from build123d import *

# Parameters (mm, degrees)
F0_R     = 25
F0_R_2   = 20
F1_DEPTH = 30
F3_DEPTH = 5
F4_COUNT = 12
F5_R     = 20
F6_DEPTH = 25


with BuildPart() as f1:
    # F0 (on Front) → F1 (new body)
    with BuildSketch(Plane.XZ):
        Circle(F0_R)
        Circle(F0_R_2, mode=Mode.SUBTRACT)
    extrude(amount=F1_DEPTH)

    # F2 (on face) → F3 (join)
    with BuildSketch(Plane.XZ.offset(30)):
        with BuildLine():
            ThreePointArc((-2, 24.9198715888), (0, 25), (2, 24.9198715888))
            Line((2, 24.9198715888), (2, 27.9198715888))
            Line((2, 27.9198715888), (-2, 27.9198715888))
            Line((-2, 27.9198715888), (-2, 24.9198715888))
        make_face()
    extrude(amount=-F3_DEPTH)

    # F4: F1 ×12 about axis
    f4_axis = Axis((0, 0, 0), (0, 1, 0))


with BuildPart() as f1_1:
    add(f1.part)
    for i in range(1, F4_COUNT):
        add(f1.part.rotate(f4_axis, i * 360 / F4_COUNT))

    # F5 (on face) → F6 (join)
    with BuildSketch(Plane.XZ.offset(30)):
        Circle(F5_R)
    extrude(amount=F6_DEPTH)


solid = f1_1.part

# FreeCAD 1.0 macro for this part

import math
import FreeCAD as App
import Part
import Sketcher
Q = App.Units.Quantity

doc = App.newDocument("Part")
body = doc.addObject("PartDesign::Body", "Body")

sketch1 = body.newObject("Sketcher::SketchObject", "Sketch")
sketch1.AttachmentSupport = (doc.getObject("XZ_Plane"), [""])
sketch1.MapMode = "FlatFace"
sketch1.addGeometry(Part.Circle(App.Vector(0, 0, 0), App.Vector(0, 0, 1), 25), False)
sketch1.addGeometry(Part.Circle(App.Vector(0, 0, 0), App.Vector(0, 0, 1), 20), False)
sketch1.addConstraint(Sketcher.Constraint("Coincident", 0, 3, -1, 1))
sketch1.addConstraint(Sketcher.Constraint("Coincident", 1, 3, -1, 1))
sketch1.addConstraint(Sketcher.Constraint("Diameter", 0, Q("50 mm")))
sketch1.addConstraint(Sketcher.Constraint("Diameter", 1, Q("40 mm")))
pad1 = body.newObject("PartDesign::Pad", "Pad")
pad1.Profile = sketch1
pad1.Length = 30

sketch2 = body.newObject("Sketcher::SketchObject", "Sketch001")
sketch2.AttachmentSupport = (doc.getObject("XZ_Plane"), [""])
sketch2.MapMode = "FlatFace"
sketch2.AttachmentOffset = App.Placement(App.Vector(0, 0, 30), App.Rotation())
sketch2.addGeometry(Part.ArcOfCircle(Part.Circle(App.Vector(0, 0, 0), App.Vector(0, 0, 1), 25), math.radians(85.41), math.radians(94.59)), False)
sketch2.addGeometry(Part.LineSegment(App.Vector(2, 24.9, 0), App.Vector(2, 27.9, 0)), False)
sketch2.addGeometry(Part.LineSegment(App.Vector(2, 27.9, 0), App.Vector(-2, 27.9, 0)), False)
sketch2.addGeometry(Part.LineSegment(App.Vector(-2, 27.9, 0), App.Vector(-2, 24.9, 0)), False)
sketch2.addConstraint(Sketcher.Constraint("Coincident", 0, 1, 1, 1))
sketch2.addConstraint(Sketcher.Constraint("Coincident", 1, 2, 2, 1))
sketch2.addConstraint(Sketcher.Constraint("Coincident", 2, 2, 3, 1))
sketch2.addConstraint(Sketcher.Constraint("Coincident", 3, 2, 0, 2))
sketch2.addConstraint(Sketcher.Constraint("Vertical", 1))
sketch2.addConstraint(Sketcher.Constraint("Horizontal", 2))
sketch2.addConstraint(Sketcher.Constraint("Vertical", 3))
sketch2.addConstraint(Sketcher.Constraint("Coincident", 0, 3, -1, 1))
sketch2.addConstraint(Sketcher.Constraint("Horizontal", 0, 1, 3, 2))
sketch2.addConstraint(Sketcher.Constraint("Radius", 0, Q("25 mm")))
sketch2.addConstraint(Sketcher.Constraint("DistanceX", 2, 2, 2, 1, Q("4 mm")))
sketch2.addConstraint(Sketcher.Constraint("DistanceY", 1, 1, 1, 2, Q("3 mm")))
pad2 = body.newObject("PartDesign::Pad", "Pad001")
pad2.Profile = sketch2
pad2.Length = 5
pad2.Reversed = True
body2 = doc.addObject("PartDesign::Body", "Body001")
body2.AllowCompound = True
doc.recompute()

body2.BaseFeature = body
doc.recompute()

body3 = doc.addObject("PartDesign::Body", "Body002")
body3.BaseFeature = body
body3.Placement = App.Placement(App.Vector(0, 0, 0), App.Rotation(App.Vector(0, 1, 0), 30))
boolean = body2.newObject("PartDesign::Boolean", "Boolean")
boolean.Type = "Fuse"
boolean.addObjects([body3])
doc.recompute()

body4 = doc.addObject("PartDesign::Body", "Body003")
body4.BaseFeature = body
body4.Placement = App.Placement(App.Vector(0, 0, 0), App.Rotation(App.Vector(0, 1, 0), 60))
boolean2 = body2.newObject("PartDesign::Boolean", "Boolean001")
boolean2.Type = "Fuse"
boolean2.addObjects([body4])
doc.recompute()

body5 = doc.addObject("PartDesign::Body", "Body004")
body5.BaseFeature = body
body5.Placement = App.Placement(App.Vector(0, 0, 0), App.Rotation(App.Vector(0, 1, 0), 90))
boolean3 = body2.newObject("PartDesign::Boolean", "Boolean002")
boolean3.Type = "Fuse"
boolean3.addObjects([body5])
doc.recompute()

body6 = doc.addObject("PartDesign::Body", "Body005")
body6.BaseFeature = body
body6.Placement = App.Placement(App.Vector(0, 0, 0), App.Rotation(App.Vector(0, 1, 0), 120))
boolean4 = body2.newObject("PartDesign::Boolean", "Boolean003")
boolean4.Type = "Fuse"
boolean4.addObjects([body6])
doc.recompute()

body7 = doc.addObject("PartDesign::Body", "Body006")
body7.BaseFeature = body
body7.Placement = App.Placement(App.Vector(0, 0, 0), App.Rotation(App.Vector(0, 1, 0), 150))
boolean5 = body2.newObject("PartDesign::Boolean", "Boolean004")
boolean5.Type = "Fuse"
boolean5.addObjects([body7])
doc.recompute()

body8 = doc.addObject("PartDesign::Body", "Body007")
body8.BaseFeature = body
body8.Placement = App.Placement(App.Vector(0, 0, 0), App.Rotation(App.Vector(0, 1, 0), 180))
boolean6 = body2.newObject("PartDesign::Boolean", "Boolean005")
boolean6.Type = "Fuse"
boolean6.addObjects([body8])
doc.recompute()

body9 = doc.addObject("PartDesign::Body", "Body008")
body9.BaseFeature = body
body9.Placement = App.Placement(App.Vector(0, 0, 0), App.Rotation(App.Vector(0, 1, 0), 210))
boolean7 = body2.newObject("PartDesign::Boolean", "Boolean006")
boolean7.Type = "Fuse"
boolean7.addObjects([body9])
doc.recompute()

body10 = doc.addObject("PartDesign::Body", "Body009")
body10.BaseFeature = body
body10.Placement = App.Placement(App.Vector(0, 0, 0), App.Rotation(App.Vector(0, 1, 0), 240))
boolean8 = body2.newObject("PartDesign::Boolean", "Boolean007")
boolean8.Type = "Fuse"
boolean8.addObjects([body10])
doc.recompute()

body11 = doc.addObject("PartDesign::Body", "Body010")
body11.BaseFeature = body
body11.Placement = App.Placement(App.Vector(0, 0, 0), App.Rotation(App.Vector(0, 1, 0), 270))
boolean9 = body2.newObject("PartDesign::Boolean", "Boolean008")
boolean9.Type = "Fuse"
boolean9.addObjects([body11])
doc.recompute()

body12 = doc.addObject("PartDesign::Body", "Body011")
body12.BaseFeature = body
body12.Placement = App.Placement(App.Vector(0, 0, 0), App.Rotation(App.Vector(0, 1, 0), 300))
boolean10 = body2.newObject("PartDesign::Boolean", "Boolean009")
boolean10.Type = "Fuse"
boolean10.addObjects([body12])
doc.recompute()

body.Placement = App.Placement(App.Vector(0, 0, 0), App.Rotation(App.Vector(0, 1, 0), 330))
boolean11 = body2.newObject("PartDesign::Boolean", "Boolean010")
boolean11.Type = "Fuse"
boolean11.addObjects([body])

sketch3 = body2.newObject("Sketcher::SketchObject", "Sketch002")
sketch3.AttachmentSupport = (doc.getObject("XZ_Plane001"), [""])
sketch3.MapMode = "FlatFace"
sketch3.AttachmentOffset = App.Placement(App.Vector(0, 0, 30), App.Rotation())
sketch3.addGeometry(Part.Circle(App.Vector(0, 0, 0), App.Vector(0, 0, 1), 20), False)
sketch3.addConstraint(Sketcher.Constraint("Coincident", 0, 3, -1, 1))
sketch3.addConstraint(Sketcher.Constraint("Diameter", 0, Q("40 mm")))
pad3 = body2.newObject("PartDesign::Pad", "Pad002")
pad3.Profile = sketch3
pad3.Length = 25

doc.recompute()
